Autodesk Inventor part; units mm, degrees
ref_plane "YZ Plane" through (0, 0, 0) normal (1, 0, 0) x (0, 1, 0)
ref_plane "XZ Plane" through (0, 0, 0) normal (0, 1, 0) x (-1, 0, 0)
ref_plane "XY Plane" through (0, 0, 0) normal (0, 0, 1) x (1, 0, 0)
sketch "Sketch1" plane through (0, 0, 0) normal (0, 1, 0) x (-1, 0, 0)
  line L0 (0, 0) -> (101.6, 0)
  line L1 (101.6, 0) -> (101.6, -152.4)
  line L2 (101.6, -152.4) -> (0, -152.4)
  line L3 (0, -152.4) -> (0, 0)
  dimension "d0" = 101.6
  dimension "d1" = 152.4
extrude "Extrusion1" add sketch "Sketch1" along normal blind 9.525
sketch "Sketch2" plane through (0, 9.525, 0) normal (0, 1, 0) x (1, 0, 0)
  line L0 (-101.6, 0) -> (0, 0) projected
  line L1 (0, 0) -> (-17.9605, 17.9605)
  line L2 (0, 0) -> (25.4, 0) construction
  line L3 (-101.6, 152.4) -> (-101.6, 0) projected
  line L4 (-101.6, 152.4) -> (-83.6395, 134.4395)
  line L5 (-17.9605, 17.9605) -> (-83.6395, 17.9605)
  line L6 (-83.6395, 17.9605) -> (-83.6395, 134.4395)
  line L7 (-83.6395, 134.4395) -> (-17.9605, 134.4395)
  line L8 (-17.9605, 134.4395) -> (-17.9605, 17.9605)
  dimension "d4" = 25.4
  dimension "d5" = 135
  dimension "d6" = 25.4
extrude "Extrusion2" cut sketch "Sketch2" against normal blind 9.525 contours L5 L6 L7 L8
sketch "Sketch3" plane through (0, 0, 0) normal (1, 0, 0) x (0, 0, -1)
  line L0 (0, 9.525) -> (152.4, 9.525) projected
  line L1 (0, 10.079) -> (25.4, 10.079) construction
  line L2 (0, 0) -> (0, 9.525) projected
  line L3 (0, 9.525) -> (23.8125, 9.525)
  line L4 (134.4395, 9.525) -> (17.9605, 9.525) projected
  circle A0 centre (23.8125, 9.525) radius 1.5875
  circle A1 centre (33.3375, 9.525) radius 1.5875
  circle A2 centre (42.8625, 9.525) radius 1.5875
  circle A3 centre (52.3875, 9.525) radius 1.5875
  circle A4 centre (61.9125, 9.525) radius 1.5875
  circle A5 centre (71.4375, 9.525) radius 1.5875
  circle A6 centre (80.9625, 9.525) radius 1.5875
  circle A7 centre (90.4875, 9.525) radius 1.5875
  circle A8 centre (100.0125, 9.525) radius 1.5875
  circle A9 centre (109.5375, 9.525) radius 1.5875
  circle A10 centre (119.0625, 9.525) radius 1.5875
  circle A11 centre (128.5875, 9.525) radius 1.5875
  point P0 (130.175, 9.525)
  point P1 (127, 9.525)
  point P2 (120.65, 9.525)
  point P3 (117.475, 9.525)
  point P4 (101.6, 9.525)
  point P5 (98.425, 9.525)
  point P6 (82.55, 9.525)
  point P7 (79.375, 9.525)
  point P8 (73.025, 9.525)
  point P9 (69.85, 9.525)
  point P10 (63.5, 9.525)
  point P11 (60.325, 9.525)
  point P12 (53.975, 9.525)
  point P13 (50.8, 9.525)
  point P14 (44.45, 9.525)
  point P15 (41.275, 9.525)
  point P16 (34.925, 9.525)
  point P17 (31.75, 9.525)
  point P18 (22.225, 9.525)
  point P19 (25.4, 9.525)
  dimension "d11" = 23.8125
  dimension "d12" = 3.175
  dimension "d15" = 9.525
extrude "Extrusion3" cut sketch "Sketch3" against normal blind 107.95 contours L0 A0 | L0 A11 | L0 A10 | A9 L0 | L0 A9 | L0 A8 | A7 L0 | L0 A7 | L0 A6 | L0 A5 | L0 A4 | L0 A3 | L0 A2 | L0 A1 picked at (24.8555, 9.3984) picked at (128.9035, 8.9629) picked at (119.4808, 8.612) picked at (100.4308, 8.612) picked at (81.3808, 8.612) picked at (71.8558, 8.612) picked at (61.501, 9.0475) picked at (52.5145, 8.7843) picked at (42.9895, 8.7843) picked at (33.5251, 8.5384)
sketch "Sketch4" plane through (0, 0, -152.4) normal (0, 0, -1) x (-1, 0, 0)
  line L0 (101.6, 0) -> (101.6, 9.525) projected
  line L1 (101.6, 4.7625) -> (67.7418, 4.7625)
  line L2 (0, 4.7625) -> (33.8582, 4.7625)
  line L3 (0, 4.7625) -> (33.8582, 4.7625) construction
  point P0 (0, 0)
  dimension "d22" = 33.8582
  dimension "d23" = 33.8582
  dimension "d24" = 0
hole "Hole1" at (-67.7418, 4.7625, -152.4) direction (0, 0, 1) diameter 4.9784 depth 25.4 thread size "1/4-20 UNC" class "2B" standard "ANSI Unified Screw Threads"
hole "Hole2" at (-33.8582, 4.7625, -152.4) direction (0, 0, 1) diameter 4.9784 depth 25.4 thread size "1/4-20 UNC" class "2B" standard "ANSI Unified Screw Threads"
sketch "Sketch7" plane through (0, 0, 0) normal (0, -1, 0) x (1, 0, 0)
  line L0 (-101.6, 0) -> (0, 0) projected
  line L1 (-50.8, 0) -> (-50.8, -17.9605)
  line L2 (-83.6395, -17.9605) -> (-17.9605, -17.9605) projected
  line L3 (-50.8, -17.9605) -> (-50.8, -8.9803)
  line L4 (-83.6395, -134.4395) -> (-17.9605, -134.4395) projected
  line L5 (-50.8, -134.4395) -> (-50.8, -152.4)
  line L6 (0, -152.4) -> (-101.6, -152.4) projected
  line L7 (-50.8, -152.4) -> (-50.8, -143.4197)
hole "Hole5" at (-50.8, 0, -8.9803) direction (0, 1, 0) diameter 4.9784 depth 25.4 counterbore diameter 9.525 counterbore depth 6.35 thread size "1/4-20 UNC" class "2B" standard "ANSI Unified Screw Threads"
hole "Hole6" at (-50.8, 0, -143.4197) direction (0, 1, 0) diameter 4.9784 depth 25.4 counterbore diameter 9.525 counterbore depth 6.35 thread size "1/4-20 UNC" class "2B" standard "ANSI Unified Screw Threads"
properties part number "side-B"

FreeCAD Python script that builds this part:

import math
import FreeCAD as App
import Part
import Sketcher
from FreeCAD import Vector
Q = App.Units.Quantity

doc = App.newDocument("Part")
params = doc.addObject("Spreadsheet::Sheet", "Params")
for row, (alias, value) in enumerate([
    ("sketch1_width", "4 in"),
    ("sketch1_height", "6 in"),
    ("pad1_length", "0.375 in"),
    ("pocket1_length", "0.375 in"),
    ("sketch3_diameter", "0.125 in"),
    ("pocket2_length", "4.25 in"),
    ("sketch4_diameter", "0.196 in"),
    ("hole_diameter", "0.196 in"),
    ("hole_depth", "1 in"),
    ("sketch5_diameter", "0.196 in"),
    ("hole2_diameter", "0.196 in"),
    ("hole2_depth", "1 in"),
    ("sketch6_diameter", "0.196 in"),
    ("hole3_diameter", "0.196 in"),
    ("hole3_depth", "1 in"),
    ("hole3_cbore_diameter", "0.375 in"),
    ("hole3_cbore_depth", "0.25 in"),
    ("sketch7_diameter", "0.196 in"),
    ("hole4_diameter", "0.196 in"),
    ("hole4_depth", "1 in"),
    ("hole4_cbore_diameter", "0.375 in"),
    ("hole4_cbore_depth", "0.25 in"),
], start=1):
    params.set(f"A{row}", alias)
    params.set(f"B{row}", "=" + value)
    params.setAlias(f"B{row}", alias)

body = doc.addObject("PartDesign::Body", "Body")

# Sketch on XZ plane
sketch1 = body.newObject("Sketcher::SketchObject", "Sketch")
sketch1.AttachmentSupport = (doc.getObject("XZ_Plane"), [""])
sketch1.MapMode = "FlatFace"
sketch1.addGeometry([
    Part.LineSegment(Vector(-101.6, 0, 0), Vector(0, 0, 0)),
    Part.LineSegment(Vector(0, 0, 0), Vector(0, -152.4, 0)),
    Part.LineSegment(Vector(0, -152.4, 0), Vector(-101.6, -152.4, 0)),
    Part.LineSegment(Vector(-101.6, -152.4, 0), Vector(-101.6, 0, 0)),
], False)
sketch1.addConstraint([
    Sketcher.Constraint("Coincident", 0, 2, 1, 1),
    Sketcher.Constraint("Coincident", 1, 2, 2, 1),
    Sketcher.Constraint("Coincident", 2, 2, 3, 1),
    Sketcher.Constraint("Coincident", 3, 2, 0, 1),
    Sketcher.Constraint("Horizontal", 0),
    Sketcher.Constraint("Vertical", 1),
    Sketcher.Constraint("Horizontal", 2),
    Sketcher.Constraint("Vertical", 3),
    Sketcher.Constraint("Coincident", 0, 2, -1, 1),
    Sketcher.Constraint("DistanceX", 0, 1, 0, 2, Q("4 in")),
    Sketcher.Constraint("DistanceY", 1, 2, 1, 1, Q("6 in")),
])
sketch1.setExpression("Constraints[9]", "Params.sketch1_width")
sketch1.setExpression("Constraints[10]", "Params.sketch1_height")
pad1 = body.newObject("PartDesign::Pad", "Pad")
pad1.Profile = sketch1
pad1.setExpression("Length", "Params.pad1_length")
pad1.Reversed = True

# Sketch on XZ plane
sketch2 = body.newObject("Sketcher::SketchObject", "Sketch001")
sketch2.AttachmentSupport = (doc.getObject("XZ_Plane"), [""])
sketch2.MapMode = "FlatFace"
sketch2.AttachmentOffset = App.Placement(Vector(0, 0, -0.375 * 25.4), App.Rotation())
sketch2.addGeometry([
    Part.LineSegment(Vector(-83.6395, -17.9605, 0), Vector(-17.9605, -17.9605, 0)),
    Part.LineSegment(Vector(-17.9605, -17.9605, 0), Vector(-17.9605, -134.4395, 0)),
    Part.LineSegment(Vector(-17.9605, -134.4395, 0), Vector(-83.6395, -134.4395, 0)),
    Part.LineSegment(Vector(-83.6395, -134.4395, 0), Vector(-83.6395, -17.9605, 0)),
], False)
sketch2.addConstraint([
    Sketcher.Constraint("Coincident", 0, 2, 1, 1),
    Sketcher.Constraint("Coincident", 1, 2, 2, 1),
    Sketcher.Constraint("Coincident", 2, 2, 3, 1),
    Sketcher.Constraint("Coincident", 3, 2, 0, 1),
    Sketcher.Constraint("Horizontal", 0),
    Sketcher.Constraint("Vertical", 1),
    Sketcher.Constraint("Horizontal", 2),
    Sketcher.Constraint("Vertical", 3),
    Sketcher.Constraint("DistanceX", 0, 1, 0, 2, 65.679),
    Sketcher.Constraint("DistanceY", 1, 2, 1, 1, 116.479),
    Sketcher.Constraint("DistanceX", 0, 2, -1, 1, Q("0.7071 in")),
    Sketcher.Constraint("DistanceY", 0, 2, -1, 1, Q("0.7071 in")),
])
pocket1 = body.newObject("PartDesign::Pocket", "Pocket")
pocket1.Profile = sketch2
pocket1.setExpression("Length", "Params.pocket1_length")
pocket1.Reversed = True

# Sketch on YZ plane
sketch3 = body.newObject("Sketcher::SketchObject", "Sketch002")
sketch3.AttachmentSupport = (doc.getObject("YZ_Plane"), [""])
sketch3.MapMode = "FlatFace"
sketch3.addGeometry([
    Part.LineSegment(Vector(9.525, -25.4, 0), Vector(9.525, -22.225, 0)),  # 0
    Part.ArcOfCircle(Part.Circle(Vector(9.525, -23.8125, 0), Vector(0, 0, 1), 1.5875), math.radians(90), math.radians(270)),  # 1
    Part.LineSegment(Vector(9.525, -130.175, 0), Vector(9.525, -127, 0)),  # 2
    Part.ArcOfCircle(Part.Circle(Vector(9.525, -128.5875, 0), Vector(0, 0, 1), 1.5875), math.radians(90), math.radians(270)),  # 3
    Part.LineSegment(Vector(9.525, -120.65, 0), Vector(9.525, -117.475, 0)),  # 4
    Part.ArcOfCircle(Part.Circle(Vector(9.525, -119.0625, 0), Vector(0, 0, 1), 1.5875), math.radians(90), math.radians(270)),  # 5
    Part.Circle(Vector(9.525, -109.5375, 0), Vector(0, 0, 1), 1.5875),  # 6
    Part.LineSegment(Vector(9.525, -101.6, 0), Vector(9.525, -98.425, 0)),  # 7
    Part.ArcOfCircle(Part.Circle(Vector(9.525, -100.0125, 0), Vector(0, 0, 1), 1.5875), math.radians(90), math.radians(270)),  # 8
    Part.Circle(Vector(9.525, -90.4875, 0), Vector(0, 0, 1), 1.5875),  # 9
    Part.LineSegment(Vector(9.525, -82.55, 0), Vector(9.525, -79.375, 0)),  # 10
    Part.ArcOfCircle(Part.Circle(Vector(9.525, -80.9625, 0), Vector(0, 0, 1), 1.5875), math.radians(90), math.radians(270)),  # 11
    Part.LineSegment(Vector(9.525, -73.025, 0), Vector(9.525, -69.85, 0)),  # 12
    Part.ArcOfCircle(Part.Circle(Vector(9.525, -71.4375, 0), Vector(0, 0, 1), 1.5875), math.radians(90), math.radians(270)),  # 13
    Part.LineSegment(Vector(9.525, -63.5, 0), Vector(9.525, -60.325, 0)),  # 14
    Part.ArcOfCircle(Part.Circle(Vector(9.525, -61.9125, 0), Vector(0, 0, 1), 1.5875), math.radians(90), math.radians(270)),  # 15
    Part.LineSegment(Vector(9.525, -53.975, 0), Vector(9.525, -50.8, 0)),  # 16
    Part.ArcOfCircle(Part.Circle(Vector(9.525, -52.3875, 0), Vector(0, 0, 1), 1.5875), math.radians(90), math.radians(270)),  # 17
    Part.LineSegment(Vector(9.525, -44.45, 0), Vector(9.525, -41.275, 0)),  # 18
    Part.ArcOfCircle(Part.Circle(Vector(9.525, -42.8625, 0), Vector(0, 0, 1), 1.5875), math.radians(90), math.radians(270)),  # 19
    Part.LineSegment(Vector(9.525, -34.925, 0), Vector(9.525, -31.75, 0)),  # 20
    Part.ArcOfCircle(Part.Circle(Vector(9.525, -33.3375, 0), Vector(0, 0, 1), 1.5875), math.radians(90), math.radians(270)),  # 21
], False)
sketch3.addConstraint([
    Sketcher.Constraint("Coincident", 0, 1, 1, 2),
    Sketcher.Constraint("Coincident", 1, 1, 0, 2),
    Sketcher.Constraint("Coincident", 2, 1, 3, 2),
    Sketcher.Constraint("Coincident", 3, 1, 2, 2),
    Sketcher.Constraint("Coincident", 4, 1, 5, 2),
    Sketcher.Constraint("Coincident", 5, 1, 4, 2),
    Sketcher.Constraint("Coincident", 7, 1, 8, 2),
    Sketcher.Constraint("Coincident", 8, 1, 7, 2),
    Sketcher.Constraint("Coincident", 10, 1, 11, 2),
    Sketcher.Constraint("Coincident", 11, 1, 10, 2),
    Sketcher.Constraint("Coincident", 12, 1, 13, 2),
    Sketcher.Constraint("Coincident", 13, 1, 12, 2),
    Sketcher.Constraint("Coincident", 14, 1, 15, 2),
    Sketcher.Constraint("Coincident", 15, 1, 14, 2),
    Sketcher.Constraint("Coincident", 16, 1, 17, 2),
    Sketcher.Constraint("Coincident", 17, 1, 16, 2),
    Sketcher.Constraint("Coincident", 18, 1, 19, 2),
    Sketcher.Constraint("Coincident", 19, 1, 18, 2),
    Sketcher.Constraint("Coincident", 20, 1, 21, 2),
    Sketcher.Constraint("Coincident", 21, 1, 20, 2),
    Sketcher.Constraint("Vertical", 0),
    Sketcher.Constraint("Vertical", 2),
    Sketcher.Constraint("Vertical", 4),
    Sketcher.Constraint("Vertical", 7),
    Sketcher.Constraint("Vertical", 10),
    Sketcher.Constraint("Vertical", 12),
    Sketcher.Constraint("Vertical", 14),
    Sketcher.Constraint("Vertical", 16),
    Sketcher.Constraint("Vertical", 18),
    Sketcher.Constraint("Vertical", 20),
    Sketcher.Constraint("Equal", 1, 3),
    Sketcher.Constraint("Equal", 3, 5),
    Sketcher.Constraint("Equal", 5, 6),
    Sketcher.Constraint("Equal", 6, 8),
    Sketcher.Constraint("Equal", 8, 9),
    Sketcher.Constraint("Equal", 9, 11),
    Sketcher.Constraint("Equal", 11, 13),
    Sketcher.Constraint("Equal", 13, 15),
    Sketcher.Constraint("Equal", 15, 17),
    Sketcher.Constraint("Equal", 17, 19),
    Sketcher.Constraint("Equal", 19, 21),
    Sketcher.Constraint("Vertical", 1, 3, 3, 3),
    Sketcher.Constraint("Vertical", 3, 3, 5, 3),
    Sketcher.Constraint("Vertical", 5, 3, 6, 3),
    Sketcher.Constraint("Vertical", 6, 3, 8, 3),
    Sketcher.Constraint("Vertical", 8, 3, 9, 3),
    Sketcher.Constraint("Vertical", 9, 3, 11, 3),
    Sketcher.Constraint("Vertical", 11, 3, 13, 3),
    Sketcher.Constraint("Vertical", 13, 3, 15, 3),
    Sketcher.Constraint("Vertical", 15, 3, 17, 3),
    Sketcher.Constraint("Vertical", 17, 3, 19, 3),
    Sketcher.Constraint("Vertical", 19, 3, 21, 3),
    Sketcher.Constraint("Vertical", 21, 3, 0, 1),
    Sketcher.Constraint("Vertical", 1, 1, 2, 1),
    Sketcher.Constraint("Vertical", 3, 1, 4, 1),
    Sketcher.Constraint("Vertical", 5, 1, 7, 1),
    Sketcher.Constraint("Vertical", 8, 1, 10, 1),
    Sketcher.Constraint("Vertical", 11, 1, 12, 1),
    Sketcher.Constraint("Vertical", 13, 1, 14, 1),
    Sketcher.Constraint("Vertical", 15, 1, 16, 1),
    Sketcher.Constraint("Vertical", 17, 1, 18, 1),
    Sketcher.Constraint("Vertical", 19, 1, 20, 1),
    Sketcher.Constraint("Diameter", 6, Q("0.125 in")),
    Sketcher.Constraint("DistanceY", 0, 1, -1, 1, Q("1 in")),
    Sketcher.Constraint("DistanceX", -1, 1, 1, 3, Q("0.375 in")),
    Sketcher.Constraint("DistanceY", 3, 1, -1, 1, Q("5 in")),
    Sketcher.Constraint("DistanceY", 7, 1, -1, 1, Q("4 in")),
    Sketcher.Constraint("DistanceY", 17, 1, -1, 1, Q("2 in")),
    Sketcher.Constraint("DistanceY", 3, 3, 5, 3, Q("0.375 in")),
    Sketcher.Constraint("DistanceY", 5, 3, 6, 3, Q("0.375 in")),
    Sketcher.Constraint("DistanceY", 8, 3, 9, 3, Q("0.375 in")),
    Sketcher.Constraint("DistanceY", 9, 3, 11, 3, Q("0.375 in")),
    Sketcher.Constraint("DistanceY", 11, 3, 13, 3, Q("0.375 in")),
    Sketcher.Constraint("DistanceY", 13, 3, 15, 3, Q("0.375 in")),
    Sketcher.Constraint("DistanceY", 17, 3, 19, 3, Q("0.375 in")),
    Sketcher.Constraint("DistanceY", 21, 3, 1, 3, Q("0.375 in")),
])
sketch3.setExpression("Constraints[62]", "Params.sketch3_diameter")
pocket2 = body.newObject("PartDesign::Pocket", "Pocket001")
pocket2.Profile = sketch3
pocket2.setExpression("Length", "Params.pocket2_length")

# Sketch on XY plane
sketch4 = body.newObject("Sketcher::SketchObject", "Sketch003")
sketch4.AttachmentSupport = (doc.getObject("XY_Plane"), [""])
sketch4.MapMode = "FlatFace"
sketch4.AttachmentOffset = App.Placement(Vector(0, 0, -6 * 25.4), App.Rotation())
sketch4.addGeometry(Part.Circle(Vector(-67.7418, 4.7625, 0), Vector(0, 0, 1), 2.4892), False)
sketch4.addConstraint([
    Sketcher.Constraint("Diameter", 0, Q("0.196 in")),
    Sketcher.Constraint("DistanceX", 0, 3, -1, 1, Q("2.667 in")),
    Sketcher.Constraint("DistanceY", -1, 1, 0, 3, Q("0.1875 in")),
])
sketch4.setExpression("Constraints[0]", "Params.sketch4_diameter")
doc.recompute()
hole = body.newObject("PartDesign::Hole", "Hole")
hole.Profile = sketch4
hole.ThreadType = "None"
hole.setExpression("Diameter", "Params.hole_diameter")
hole.DepthType = "Dimension"
hole.setExpression("Depth", "Params.hole_depth")
hole.DrillPoint = "Flat"
hole.Reversed = True

# Sketch on XY plane
sketch5 = body.newObject("Sketcher::SketchObject", "Sketch004")
sketch5.AttachmentSupport = (doc.getObject("XY_Plane"), [""])
sketch5.MapMode = "FlatFace"
sketch5.AttachmentOffset = App.Placement(Vector(0, 0, -6 * 25.4), App.Rotation())
sketch5.addGeometry(Part.Circle(Vector(-33.8582, 4.7625, 0), Vector(0, 0, 1), 2.4892), False)
sketch5.addConstraint([
    Sketcher.Constraint("Diameter", 0, Q("0.196 in")),
    Sketcher.Constraint("DistanceX", 0, 3, -1, 1, Q("1.333 in")),
    Sketcher.Constraint("DistanceY", -1, 1, 0, 3, Q("0.1875 in")),
])
sketch5.setExpression("Constraints[0]", "Params.sketch5_diameter")
doc.recompute()
hole2 = body.newObject("PartDesign::Hole", "Hole001")
hole2.Profile = sketch5
hole2.ThreadType = "None"
hole2.setExpression("Diameter", "Params.hole2_diameter")
hole2.DepthType = "Dimension"
hole2.setExpression("Depth", "Params.hole2_depth")
hole2.DrillPoint = "Flat"
hole2.Reversed = True

# Sketch on XZ plane
sketch6 = body.newObject("Sketcher::SketchObject", "Sketch005")
sketch6.AttachmentSupport = (doc.getObject("XZ_Plane"), [""])
sketch6.MapMode = "FlatFace"
sketch6.addGeometry(Part.Circle(Vector(-50.8, -8.9803, 0), Vector(0, 0, 1), 2.4892), False)
sketch6.addConstraint([
    Sketcher.Constraint("Diameter", 0, Q("0.196 in")),
    Sketcher.Constraint("DistanceX", 0, 3, -1, 1, Q("2 in")),
    Sketcher.Constraint("DistanceY", 0, 3, -1, 1, 8.9803),
])
sketch6.setExpression("Constraints[0]", "Params.sketch6_diameter")
doc.recompute()
hole3 = body.newObject("PartDesign::Hole", "Hole002")
hole3.Profile = sketch6
hole3.ThreadType = "None"
hole3.setExpression("Diameter", "Params.hole3_diameter")
hole3.DepthType = "Dimension"
hole3.setExpression("Depth", "Params.hole3_depth")
hole3.DrillPoint = "Flat"
hole3.HoleCutType = "Counterbore"
hole3.setExpression("HoleCutDiameter", "Params.hole3_cbore_diameter")
hole3.setExpression("HoleCutDepth", "Params.hole3_cbore_depth")

# Sketch on XZ plane
sketch7 = body.newObject("Sketcher::SketchObject", "Sketch006")
sketch7.AttachmentSupport = (doc.getObject("XZ_Plane"), [""])
sketch7.MapMode = "FlatFace"
sketch7.addGeometry(Part.Circle(Vector(-50.8, -143.4197, 0), Vector(0, 0, 1), 2.4892), False)
sketch7.addConstraint([
    Sketcher.Constraint("Diameter", 0, Q("0.196 in")),
    Sketcher.Constraint("DistanceX", 0, 3, -1, 1, Q("2 in")),
    Sketcher.Constraint("DistanceY", 0, 3, -1, 1, 143.4197),
])
sketch7.setExpression("Constraints[0]", "Params.sketch7_diameter")
doc.recompute()
hole4 = body.newObject("PartDesign::Hole", "Hole003")
hole4.Profile = sketch7
hole4.ThreadType = "None"
hole4.setExpression("Diameter", "Params.hole4_diameter")
hole4.DepthType = "Dimension"
hole4.setExpression("Depth", "Params.hole4_depth")
hole4.DrillPoint = "Flat"
hole4.HoleCutType = "Counterbore"
hole4.setExpression("HoleCutDiameter", "Params.hole4_cbore_diameter")
hole4.setExpression("HoleCutDepth", "Params.hole4_cbore_depth")

doc.recompute()
